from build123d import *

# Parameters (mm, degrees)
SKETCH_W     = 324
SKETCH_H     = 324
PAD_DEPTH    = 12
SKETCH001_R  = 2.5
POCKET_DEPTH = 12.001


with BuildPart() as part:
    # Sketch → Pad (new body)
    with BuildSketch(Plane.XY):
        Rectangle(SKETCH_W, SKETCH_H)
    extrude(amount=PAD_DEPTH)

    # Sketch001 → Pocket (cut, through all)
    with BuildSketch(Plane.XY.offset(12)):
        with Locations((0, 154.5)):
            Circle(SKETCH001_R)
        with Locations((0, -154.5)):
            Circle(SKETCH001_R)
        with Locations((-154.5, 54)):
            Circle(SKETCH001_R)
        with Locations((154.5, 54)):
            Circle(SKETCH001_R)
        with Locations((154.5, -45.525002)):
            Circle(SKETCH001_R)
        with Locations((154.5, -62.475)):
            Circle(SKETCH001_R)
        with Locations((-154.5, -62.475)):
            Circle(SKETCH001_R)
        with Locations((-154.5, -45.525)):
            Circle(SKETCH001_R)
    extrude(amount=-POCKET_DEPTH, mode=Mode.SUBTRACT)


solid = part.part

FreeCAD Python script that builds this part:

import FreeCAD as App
import Part
import Sketcher

V = App.Vector


def add_polygon(sketch, points):
    """Adds a closed chain of lines whose ends are joined by coincident constraints."""
    first, n = sketch.GeometryCount, len(points)
    for a, b in zip(points, points[1:] + points[:1]):
        sketch.addGeometry(Part.LineSegment(App.Vector(*a, 0), App.Vector(*b, 0)), False)
    for i in range(n):
        sketch.addConstraint(Sketcher.Constraint("Coincident", first + i, 2, first + (i + 1) % n, 1))

doc = App.newDocument("Part")
params = doc.addObject("Spreadsheet::Sheet", "Params")
for row, (alias, value) in enumerate([
    ("sketch1_width", "324 mm"),
    ("pad1_length", "12 mm"),
    ("sketch2_diameter", "5 mm"),
], start=1):
    params.set(f"A{row}", alias)
    params.set(f"B{row}", "=" + value)
    params.setAlias(f"B{row}", alias)

body = doc.addObject("PartDesign::Body", "Body")

sketch1 = doc.addObject("Sketcher::SketchObject", "Sketch")
body.addObject(sketch1)
sketch1.AttachmentSupport = (doc.XY_Plane, [""])
sketch1.MapMode = "FlatFace"
add_polygon(sketch1, [(-162, 162), (-162, -162), (162, -162), (162, 162)])
sketch1.addConstraint([
    Sketcher.Constraint("Vertical", 0),
    Sketcher.Constraint("Horizontal", 1),
    Sketcher.Constraint("Vertical", 2),
    Sketcher.Constraint("Horizontal", 3),
    Sketcher.Constraint("Symmetric", 0, 2, 2, 2, -1, 1),
    Sketcher.Constraint("Equal", 3, 0),
    Sketcher.Constraint("DistanceX", 1, 1, 1, 2, 324.0),
])
sketch1.setExpression("Constraints[10]", "Params.sketch1_width")
pad1 = doc.addObject("PartDesign::Pad", "Pad")
body.addObject(pad1)
pad1.Profile = sketch1
pad1.setExpression("Length", "Params.pad1_length")

sketch2 = doc.addObject("Sketcher::SketchObject", "Sketch001")
body.addObject(sketch2)
sketch2.AttachmentSupport = (doc.XY_Plane, [""])
sketch2.MapMode = "FlatFace"
sketch2.AttachmentOffset = App.Placement(V(0, 0, 12), App.Rotation())
sketch2.addGeometry([
    Part.Circle(V(0, 154.5, 0), V(0, 0, 1), 2.5),
    Part.Circle(V(0, -154.5, 0), V(0, 0, 1), 2.5),
    Part.Circle(V(-154.5, 54, 0), V(0, 0, 1), 2.5),
    Part.Circle(V(154.5, 54, 0), V(0, 0, 1), 2.5),
    Part.Circle(V(154.5, -45.5, 0), V(0, 0, 1), 2.5),
    Part.Circle(V(154.5, -62.5, 0), V(0, 0, 1), 2.5),
    Part.Circle(V(-154.5, -62.5, 0), V(0, 0, 1), 2.5),
    Part.Circle(V(-154.5, -45.5, 0), V(0, 0, 1), 2.5),
], False)
sketch2.addConstraint([
    Sketcher.Constraint("Equal", 0, 1),
    Sketcher.Constraint("Equal", 1, 2),
    Sketcher.Constraint("Equal", 2, 3),
    Sketcher.Constraint("Equal", 3, 4),
    Sketcher.Constraint("Equal", 4, 5),
    Sketcher.Constraint("Equal", 5, 6),
    Sketcher.Constraint("Equal", 6, 7),
    Sketcher.Constraint("Symmetric", 0, 3, 1, 3, -1, 1),
    Sketcher.Constraint("Symmetric", 2, 3, 3, 3, -2),
    Sketcher.Constraint("Symmetric", 5, 3, 6, 3, -2),
    Sketcher.Constraint("Symmetric", 4, 3, 7, 3, -2),
    Sketcher.Constraint("PointOnObject", 0, 3, -2),
    Sketcher.Constraint("Vertical", 3, 3, 4, 3),
    Sketcher.Constraint("Vertical", 4, 3, 5, 3),
    Sketcher.Constraint("Diameter", 0, 5.0),
    Sketcher.Constraint("DistanceY", -1, 1, 2, 3, 54.0),
    Sketcher.Constraint("DistanceY", 1, 3, 0, 3, 309.0),
    Sketcher.Constraint("DistanceX", 2, 3, 3, 3, 309.0),
    Sketcher.Constraint("DistanceY", 5, 3, 4, 3, 16.949998),
    Sketcher.Constraint("DistanceY", 5, 3, -1, 1, 62.475),
])
sketch2.setExpression("Constraints[14]", "Params.sketch2_diameter")
pocket1 = doc.addObject("PartDesign::Pocket", "Pocket")
body.addObject(pocket1)
pocket1.Profile = sketch2
pocket1.Type = "ThroughAll"

doc.recompute()
